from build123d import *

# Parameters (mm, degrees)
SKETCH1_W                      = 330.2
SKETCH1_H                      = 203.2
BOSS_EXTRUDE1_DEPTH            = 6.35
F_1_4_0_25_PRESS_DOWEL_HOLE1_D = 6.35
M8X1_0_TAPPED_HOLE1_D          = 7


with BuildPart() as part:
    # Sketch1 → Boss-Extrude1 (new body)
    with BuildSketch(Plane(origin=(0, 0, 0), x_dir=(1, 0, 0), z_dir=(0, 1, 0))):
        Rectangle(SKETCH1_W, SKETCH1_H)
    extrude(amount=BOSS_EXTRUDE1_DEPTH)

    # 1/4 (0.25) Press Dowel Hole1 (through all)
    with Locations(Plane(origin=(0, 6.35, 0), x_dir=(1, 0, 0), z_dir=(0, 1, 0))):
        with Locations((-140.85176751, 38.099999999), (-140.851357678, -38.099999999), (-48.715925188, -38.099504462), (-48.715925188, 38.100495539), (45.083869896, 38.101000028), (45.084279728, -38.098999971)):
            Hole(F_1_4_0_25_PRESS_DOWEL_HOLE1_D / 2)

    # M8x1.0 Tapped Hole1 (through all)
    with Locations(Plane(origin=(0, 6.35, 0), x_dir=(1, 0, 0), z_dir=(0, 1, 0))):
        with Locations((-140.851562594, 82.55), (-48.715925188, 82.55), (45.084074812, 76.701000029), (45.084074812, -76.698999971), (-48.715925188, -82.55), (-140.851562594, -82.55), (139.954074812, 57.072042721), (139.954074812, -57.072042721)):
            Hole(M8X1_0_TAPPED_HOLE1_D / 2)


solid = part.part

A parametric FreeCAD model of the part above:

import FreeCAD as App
import Part
import Sketcher
from FreeCAD import Vector
Q = App.Units.Quantity

doc = App.newDocument("Part")
body = doc.addObject("PartDesign::Body", "Body")

# Sketch on XZ plane
sketch1 = doc.addObject("Sketcher::SketchObject", "Sketch")
body.addObject(sketch1)
sketch1.AttachmentSupport = (doc.XZ_Plane, [""])
sketch1.MapMode = "FlatFace"
sketch1.addGeometry(Part.LineSegment(Vector(-165, -102, 0), Vector(-165, 102, 0)), False)
sketch1.addGeometry(Part.LineSegment(Vector(-165, 102, 0), Vector(165, 102, 0)), False)
sketch1.addGeometry(Part.LineSegment(Vector(165, 102, 0), Vector(165, -102, 0)), False)
sketch1.addGeometry(Part.LineSegment(Vector(165, -102, 0), Vector(-165, -102, 0)), False)
sketch1.addConstraint(Sketcher.Constraint("Coincident", 0, 2, 1, 1))
sketch1.addConstraint(Sketcher.Constraint("Coincident", 1, 2, 2, 1))
sketch1.addConstraint(Sketcher.Constraint("Coincident", 2, 2, 3, 1))
sketch1.addConstraint(Sketcher.Constraint("Coincident", 3, 2, 0, 1))
sketch1.addConstraint(Sketcher.Constraint("Vertical", 0))
sketch1.addConstraint(Sketcher.Constraint("Horizontal", 1))
sketch1.addConstraint(Sketcher.Constraint("Vertical", 2))
sketch1.addConstraint(Sketcher.Constraint("Horizontal", 3))
sketch1.addConstraint(Sketcher.Constraint("Symmetric", 0, 2, 2, 2, -1, 1))
sketch1.addConstraint(Sketcher.Constraint("DistanceX", 1, 1, 1, 2, Q("13 in")))
sketch1.addConstraint(Sketcher.Constraint("DistanceY", 0, 1, 0, 2, Q("8 in")))
pad1 = doc.addObject("PartDesign::Pad", "Pad")
body.addObject(pad1)
pad1.Profile = sketch1
pad1.Length = Q("0.25 in")
pad1.Reversed = True

# Sketch on XZ plane
sketch2 = doc.addObject("Sketcher::SketchObject", "Sketch001")
body.addObject(sketch2)
sketch2.AttachmentSupport = (doc.XZ_Plane, [""])
sketch2.MapMode = "FlatFace"
sketch2.AttachmentOffset = App.Placement(Vector(0, 0, -0.25 * 25.4), App.Rotation())
sketch2.addGeometry(Part.Circle(Vector(-140.9, -38.1, 0), Vector(0, 0, 1), 3.2), False)
sketch2.addGeometry(Part.Circle(Vector(-140.9, 38.1, 0), Vector(0, 0, 1), 3.2), False)
sketch2.addGeometry(Part.Circle(Vector(-48.7, 38.1, 0), Vector(0, 0, 1), 3.2), False)
sketch2.addGeometry(Part.Circle(Vector(-48.7, -38.1, 0), Vector(0, 0, 1), 3.2), False)
sketch2.addGeometry(Part.Circle(Vector(45.1, -38.1, 0), Vector(0, 0, 1), 3.2), False)
sketch2.addGeometry(Part.Circle(Vector(45.1, 38.1, 0), Vector(0, 0, 1), 3.2), False)
sketch2.addConstraint(Sketcher.Constraint("Equal", 0, 1))
sketch2.addConstraint(Sketcher.Constraint("Equal", 1, 2))
sketch2.addConstraint(Sketcher.Constraint("Equal", 2, 3))
sketch2.addConstraint(Sketcher.Constraint("Equal", 3, 4))
sketch2.addConstraint(Sketcher.Constraint("Equal", 4, 5))
sketch2.addConstraint(Sketcher.Constraint("Vertical", 2, 3, 3, 3))
sketch2.addConstraint(Sketcher.Constraint("Diameter", 0, Q("0.25 in")))
sketch2.addConstraint(Sketcher.Constraint("DistanceY", 0, 3, 1, 3, Q("3 in")))
sketch2.addConstraint(Sketcher.Constraint("DistanceY", 3, 3, 2, 3, Q("3 in")))
sketch2.addConstraint(Sketcher.Constraint("DistanceY", 4, 3, 5, 3, Q("3 in")))
sketch2.addConstraint(Sketcher.Constraint("DistanceY", 0, 3, -1, 1, Q("1.5 in")))
sketch2.addConstraint(Sketcher.Constraint("DistanceY", 4, 3, -1, 1, Q("38.101 mm")))
sketch2.addConstraint(Sketcher.Constraint("DistanceX", -1, 1, 4, 3, Q("45.08387 mm")))
sketch2.addConstraint(Sketcher.Constraint("DistanceX", -1, 1, 5, 3, Q("45.08428 mm")))
sketch2.addConstraint(Sketcher.Constraint("DistanceX", 0, 3, 1, 3, Q("0.00041 mm")))
sketch2.addConstraint(Sketcher.Constraint("DistanceX", 0, 3, -1, 1, Q("140.851768 mm")))
sketch2.addConstraint(Sketcher.Constraint("DistanceX", 2, 3, -1, 1, Q("48.715925 mm")))
sketch2.addConstraint(Sketcher.Constraint("DistanceY", -1, 1, 2, 3, Q("38.099504 mm")))
doc.recompute()
hole = doc.addObject("PartDesign::Hole", "Hole")
body.addObject(hole)
hole.Profile = sketch2
hole.ThreadType = "None"
hole.Diameter = Q("0.25 in")
hole.DepthType = "ThroughAll"
hole.Reversed = True

# Sketch on XZ plane
sketch3 = doc.addObject("Sketcher::SketchObject", "Sketch002")
body.addObject(sketch3)
sketch3.AttachmentSupport = (doc.XZ_Plane, [""])
sketch3.MapMode = "FlatFace"
sketch3.AttachmentOffset = App.Placement(Vector(0, 0, -0.25 * 25.4), App.Rotation())
sketch3.addGeometry(Part.Circle(Vector(-140.9, -82.5, 0), Vector(0, 0, 1), 3.5), False)
sketch3.addGeometry(Part.Circle(Vector(-48.7, -82.5, 0), Vector(0, 0, 1), 3.5), False)
sketch3.addGeometry(Part.Circle(Vector(45.1, -76.7, 0), Vector(0, 0, 1), 3.5), False)
sketch3.addGeometry(Part.Circle(Vector(45.1, 76.7, 0), Vector(0, 0, 1), 3.5), False)
sketch3.addGeometry(Part.Circle(Vector(-48.7, 82.5, 0), Vector(0, 0, 1), 3.5), False)
sketch3.addGeometry(Part.Circle(Vector(-140.9, 82.5, 0), Vector(0, 0, 1), 3.5), False)
sketch3.addGeometry(Part.Circle(Vector(140, -57.1, 0), Vector(0, 0, 1), 3.5), False)
sketch3.addGeometry(Part.Circle(Vector(140, 57.1, 0), Vector(0, 0, 1), 3.5), False)
sketch3.addConstraint(Sketcher.Constraint("Equal", 0, 1))
sketch3.addConstraint(Sketcher.Constraint("Equal", 1, 2))
sketch3.addConstraint(Sketcher.Constraint("Equal", 2, 3))
sketch3.addConstraint(Sketcher.Constraint("Equal", 3, 4))
sketch3.addConstraint(Sketcher.Constraint("Equal", 4, 5))
sketch3.addConstraint(Sketcher.Constraint("Equal", 5, 6))
sketch3.addConstraint(Sketcher.Constraint("Equal", 6, 7))
sketch3.addConstraint(Sketcher.Constraint("Symmetric", 1, 3, 4, 3, -1))
sketch3.addConstraint(Sketcher.Constraint("Symmetric", 0, 3, 5, 3, -1))
sketch3.addConstraint(Sketcher.Constraint("Symmetric", 6, 3, 7, 3, -1))
sketch3.addConstraint(Sketcher.Constraint("Horizontal", 0, 3, 1, 3))
sketch3.addConstraint(Sketcher.Constraint("Vertical", 2, 3, 3, 3))
sketch3.addConstraint(Sketcher.Constraint("DistanceY", 1, 3, 4, 3, Q("6.5 in")))
sketch3.addConstraint(Sketcher.Constraint("Diameter", 0, Q("7 mm")))
sketch3.addConstraint(Sketcher.Constraint("DistanceY", 2, 3, -1, 1, Q("76.701 mm")))
sketch3.addConstraint(Sketcher.Constraint("DistanceY", -1, 1, 3, 3, Q("76.699 mm")))
sketch3.addConstraint(Sketcher.Constraint("DistanceX", 1, 3, 2, 3, Q("93.8 mm")))
sketch3.addConstraint(Sketcher.Constraint("DistanceX", 2, 3, 6, 3, Q("94.87 mm")))
sketch3.addConstraint(Sketcher.Constraint("DistanceX", 0, 3, -1, 1, Q("140.851563 mm")))
sketch3.addConstraint(Sketcher.Constraint("DistanceX", 1, 3, -1, 1, Q("48.715925 mm")))
sketch3.addConstraint(Sketcher.Constraint("DistanceY", 6, 3, -1, 1, Q("57.072043 mm")))
doc.recompute()
hole2 = doc.addObject("PartDesign::Hole", "Hole001")
body.addObject(hole2)
hole2.Profile = sketch3
hole2.ThreadType = "None"
hole2.Diameter = 7
hole2.DepthType = "ThroughAll"
hole2.Reversed = True

doc.recompute()
